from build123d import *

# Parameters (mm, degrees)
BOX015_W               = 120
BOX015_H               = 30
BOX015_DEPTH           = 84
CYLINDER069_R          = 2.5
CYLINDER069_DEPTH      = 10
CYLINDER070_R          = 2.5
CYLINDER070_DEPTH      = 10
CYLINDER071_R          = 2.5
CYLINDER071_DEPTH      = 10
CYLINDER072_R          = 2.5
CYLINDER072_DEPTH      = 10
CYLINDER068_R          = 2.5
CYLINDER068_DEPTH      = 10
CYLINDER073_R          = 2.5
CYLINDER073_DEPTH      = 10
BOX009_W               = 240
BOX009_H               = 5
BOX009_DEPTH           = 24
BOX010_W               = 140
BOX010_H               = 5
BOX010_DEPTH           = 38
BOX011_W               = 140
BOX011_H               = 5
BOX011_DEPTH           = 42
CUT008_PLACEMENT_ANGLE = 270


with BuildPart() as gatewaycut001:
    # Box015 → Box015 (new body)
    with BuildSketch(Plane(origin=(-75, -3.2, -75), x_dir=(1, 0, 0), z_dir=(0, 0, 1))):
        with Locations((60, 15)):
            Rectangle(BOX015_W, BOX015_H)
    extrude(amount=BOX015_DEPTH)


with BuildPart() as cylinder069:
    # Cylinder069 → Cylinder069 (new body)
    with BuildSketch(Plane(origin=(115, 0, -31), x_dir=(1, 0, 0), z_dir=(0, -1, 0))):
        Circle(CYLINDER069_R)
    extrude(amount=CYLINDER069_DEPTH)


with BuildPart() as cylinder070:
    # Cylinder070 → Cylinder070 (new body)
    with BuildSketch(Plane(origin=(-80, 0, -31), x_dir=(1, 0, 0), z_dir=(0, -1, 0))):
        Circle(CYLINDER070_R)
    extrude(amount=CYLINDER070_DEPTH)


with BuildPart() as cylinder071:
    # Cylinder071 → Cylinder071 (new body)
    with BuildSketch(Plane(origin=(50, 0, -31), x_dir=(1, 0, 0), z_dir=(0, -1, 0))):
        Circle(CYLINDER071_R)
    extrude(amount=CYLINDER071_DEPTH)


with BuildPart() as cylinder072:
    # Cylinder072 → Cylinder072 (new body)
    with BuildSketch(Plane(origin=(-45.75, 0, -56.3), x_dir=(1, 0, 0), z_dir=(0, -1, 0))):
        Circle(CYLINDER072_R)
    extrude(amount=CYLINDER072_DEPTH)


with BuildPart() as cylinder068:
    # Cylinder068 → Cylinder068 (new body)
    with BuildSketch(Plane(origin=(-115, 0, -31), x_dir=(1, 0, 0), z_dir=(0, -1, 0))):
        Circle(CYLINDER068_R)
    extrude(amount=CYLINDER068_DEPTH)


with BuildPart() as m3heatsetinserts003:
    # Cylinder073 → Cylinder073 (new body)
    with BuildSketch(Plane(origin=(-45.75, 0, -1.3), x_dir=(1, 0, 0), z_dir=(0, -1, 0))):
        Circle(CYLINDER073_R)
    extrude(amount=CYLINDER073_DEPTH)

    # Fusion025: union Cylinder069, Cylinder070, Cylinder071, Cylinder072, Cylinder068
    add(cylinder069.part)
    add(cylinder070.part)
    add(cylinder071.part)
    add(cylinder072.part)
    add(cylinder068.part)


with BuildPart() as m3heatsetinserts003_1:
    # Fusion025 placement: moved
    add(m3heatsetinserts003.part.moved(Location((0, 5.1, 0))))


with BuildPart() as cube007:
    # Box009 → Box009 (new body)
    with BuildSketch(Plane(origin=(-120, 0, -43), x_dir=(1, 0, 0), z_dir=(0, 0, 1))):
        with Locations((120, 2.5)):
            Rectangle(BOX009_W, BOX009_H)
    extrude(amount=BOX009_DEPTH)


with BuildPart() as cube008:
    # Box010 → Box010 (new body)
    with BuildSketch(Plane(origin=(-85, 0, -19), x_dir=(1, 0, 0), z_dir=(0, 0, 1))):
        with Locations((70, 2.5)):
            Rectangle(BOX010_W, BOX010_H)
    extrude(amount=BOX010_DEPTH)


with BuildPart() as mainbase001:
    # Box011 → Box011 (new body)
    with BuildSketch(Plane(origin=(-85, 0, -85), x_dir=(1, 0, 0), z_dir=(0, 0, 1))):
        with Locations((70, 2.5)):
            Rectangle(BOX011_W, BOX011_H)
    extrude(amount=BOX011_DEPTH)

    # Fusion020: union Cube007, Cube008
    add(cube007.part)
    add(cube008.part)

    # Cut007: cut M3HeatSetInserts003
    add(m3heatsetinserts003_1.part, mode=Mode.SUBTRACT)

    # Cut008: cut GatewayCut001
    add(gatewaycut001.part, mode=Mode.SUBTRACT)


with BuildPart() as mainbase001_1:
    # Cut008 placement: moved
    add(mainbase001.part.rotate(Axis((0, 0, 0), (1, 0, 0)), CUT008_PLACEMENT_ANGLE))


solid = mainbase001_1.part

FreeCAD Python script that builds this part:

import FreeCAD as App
import Part
import Sketcher
Q = App.Units.Quantity


def add_polygon(sketch, points):
    """Adds a closed chain of lines whose ends are joined by coincident constraints."""
    first, n = sketch.GeometryCount, len(points)
    for a, b in zip(points, points[1:] + points[:1]):
        sketch.addGeometry(Part.LineSegment(App.Vector(*a, 0), App.Vector(*b, 0)), False)
    for i in range(n):
        sketch.addConstraint(Sketcher.Constraint("Coincident", first + i, 2, first + (i + 1) % n, 1))

doc = App.newDocument("Part")
body = doc.addObject("PartDesign::Body", "Body")

sketch1 = body.newObject("Sketcher::SketchObject", "Sketch")
sketch1.AttachmentSupport = (doc.getObject("XY_Plane"), [""])
sketch1.MapMode = "FlatFace"
sketch1.AttachmentOffset = App.Placement(App.Vector(0, 0, -75), App.Rotation())
add_polygon(sketch1, [(-75, 26.8), (-75, -3.2), (45, -3.2), (45, 26.8)])
sketch1.addConstraint(Sketcher.Constraint("Vertical", 0))
sketch1.addConstraint(Sketcher.Constraint("Horizontal", 1))
sketch1.addConstraint(Sketcher.Constraint("Vertical", 2))
sketch1.addConstraint(Sketcher.Constraint("Horizontal", 3))
sketch1.addConstraint(Sketcher.Constraint("DistanceX", 1, 1, 1, 2, Q("120 mm")))
sketch1.addConstraint(Sketcher.Constraint("DistanceY", 0, 2, 0, 1, Q("30 mm")))
sketch1.addConstraint(Sketcher.Constraint("DistanceX", 0, 2, -1, 1, Q("75 mm")))
sketch1.addConstraint(Sketcher.Constraint("DistanceY", 0, 2, -1, 1, Q("3.2 mm")))
pad1 = body.newObject("PartDesign::Pad", "Pad")
pad1.Profile = sketch1
pad1.Length = 84
body2 = doc.addObject("PartDesign::Body", "Body001")

sketch2 = body2.newObject("Sketcher::SketchObject", "Sketch001")
sketch2.AttachmentSupport = (doc.getObject("XZ_Plane001"), [""])
sketch2.MapMode = "FlatFace"
sketch2.addGeometry(Part.Circle(App.Vector(115, -31, 0), App.Vector(0, 0, 1), 2.5), False)
sketch2.addConstraint(Sketcher.Constraint("Diameter", 0, Q("5 mm")))
sketch2.addConstraint(Sketcher.Constraint("DistanceX", -1, 1, 0, 3, Q("115 mm")))
sketch2.addConstraint(Sketcher.Constraint("DistanceY", 0, 3, -1, 1, Q("31 mm")))
pad2 = body2.newObject("PartDesign::Pad", "Pad001")
pad2.Profile = sketch2
pad2.Length = 10
body3 = doc.addObject("PartDesign::Body", "Body002")

sketch3 = body3.newObject("Sketcher::SketchObject", "Sketch002")
sketch3.AttachmentSupport = (doc.getObject("XZ_Plane002"), [""])
sketch3.MapMode = "FlatFace"
sketch3.addGeometry(Part.Circle(App.Vector(-80, -31, 0), App.Vector(0, 0, 1), 2.5), False)
sketch3.addConstraint(Sketcher.Constraint("Diameter", 0, Q("5 mm")))
sketch3.addConstraint(Sketcher.Constraint("DistanceX", 0, 3, -1, 1, Q("80 mm")))
sketch3.addConstraint(Sketcher.Constraint("DistanceY", 0, 3, -1, 1, Q("31 mm")))
pad3 = body3.newObject("PartDesign::Pad", "Pad002")
pad3.Profile = sketch3
pad3.Length = 10
body4 = doc.addObject("PartDesign::Body", "Body003")

sketch4 = body4.newObject("Sketcher::SketchObject", "Sketch003")
sketch4.AttachmentSupport = (doc.getObject("XZ_Plane003"), [""])
sketch4.MapMode = "FlatFace"
sketch4.addGeometry(Part.Circle(App.Vector(50, -31, 0), App.Vector(0, 0, 1), 2.5), False)
sketch4.addConstraint(Sketcher.Constraint("Diameter", 0, Q("5 mm")))
sketch4.addConstraint(Sketcher.Constraint("DistanceX", -1, 1, 0, 3, Q("50 mm")))
sketch4.addConstraint(Sketcher.Constraint("DistanceY", 0, 3, -1, 1, Q("31 mm")))
pad4 = body4.newObject("PartDesign::Pad", "Pad003")
pad4.Profile = sketch4
pad4.Length = 10
body5 = doc.addObject("PartDesign::Body", "Body004")

sketch5 = body5.newObject("Sketcher::SketchObject", "Sketch004")
sketch5.AttachmentSupport = (doc.getObject("XZ_Plane004"), [""])
sketch5.MapMode = "FlatFace"
sketch5.addGeometry(Part.Circle(App.Vector(-45.75, -56.3, 0), App.Vector(0, 0, 1), 2.5), False)
sketch5.addConstraint(Sketcher.Constraint("Diameter", 0, Q("5 mm")))
sketch5.addConstraint(Sketcher.Constraint("DistanceY", 0, 3, -1, 1, Q("56.3 mm")))
sketch5.addConstraint(Sketcher.Constraint("DistanceX", 0, 3, -1, 1, Q("45.75 mm")))
pad5 = body5.newObject("PartDesign::Pad", "Pad004")
pad5.Profile = sketch5
pad5.Length = 10
body6 = doc.addObject("PartDesign::Body", "Body005")

sketch6 = body6.newObject("Sketcher::SketchObject", "Sketch005")
sketch6.AttachmentSupport = (doc.getObject("XZ_Plane005"), [""])
sketch6.MapMode = "FlatFace"
sketch6.addGeometry(Part.Circle(App.Vector(-115, -31, 0), App.Vector(0, 0, 1), 2.5), False)
sketch6.addConstraint(Sketcher.Constraint("Diameter", 0, Q("5 mm")))
sketch6.addConstraint(Sketcher.Constraint("DistanceX", 0, 3, -1, 1, Q("115 mm")))
sketch6.addConstraint(Sketcher.Constraint("DistanceY", 0, 3, -1, 1, Q("31 mm")))
pad6 = body6.newObject("PartDesign::Pad", "Pad005")
pad6.Profile = sketch6
pad6.Length = 10
body7 = doc.addObject("PartDesign::Body", "Body006")
body7.AllowCompound = True

sketch7 = body7.newObject("Sketcher::SketchObject", "Sketch006")
sketch7.AttachmentSupport = (doc.getObject("XZ_Plane006"), [""])
sketch7.MapMode = "FlatFace"
sketch7.addGeometry(Part.Circle(App.Vector(-45.75, -1.3, 0), App.Vector(0, 0, 1), 2.5), False)
sketch7.addConstraint(Sketcher.Constraint("Diameter", 0, Q("5 mm")))
sketch7.addConstraint(Sketcher.Constraint("DistanceY", 0, 3, -1, 1, Q("1.3 mm")))
sketch7.addConstraint(Sketcher.Constraint("DistanceX", 0, 3, -1, 1, Q("45.75 mm")))
pad7 = body7.newObject("PartDesign::Pad", "Pad006")
pad7.Profile = sketch7
pad7.Length = 10
doc.recompute()

boolean = body7.newObject("PartDesign::Boolean", "Boolean")
boolean.Type = "Fuse"
boolean.addObjects([body2])
doc.recompute()

boolean2 = body7.newObject("PartDesign::Boolean", "Boolean001")
boolean2.Type = "Fuse"
boolean2.addObjects([body3])
doc.recompute()

boolean3 = body7.newObject("PartDesign::Boolean", "Boolean002")
boolean3.Type = "Fuse"
boolean3.addObjects([body4])
doc.recompute()

boolean4 = body7.newObject("PartDesign::Boolean", "Boolean003")
boolean4.Type = "Fuse"
boolean4.addObjects([body5])
doc.recompute()

boolean5 = body7.newObject("PartDesign::Boolean", "Boolean004")
boolean5.Type = "Fuse"
boolean5.addObjects([body6])
body8 = doc.addObject("PartDesign::Body", "Body007")
body8.AllowCompound = True
doc.recompute()

body7.Placement = App.Placement(App.Vector(0, 5.1, 0), App.Rotation(App.Vector(0, 0, 1), 0))
boolean6 = body8.newObject("PartDesign::Boolean", "Boolean005")
boolean6.Type = "Fuse"
boolean6.addObjects([body7])
body9 = doc.addObject("PartDesign::Body", "Body008")

sketch8 = body9.newObject("Sketcher::SketchObject", "Sketch007")
sketch8.AttachmentSupport = (doc.getObject("XY_Plane008"), [""])
sketch8.MapMode = "FlatFace"
sketch8.AttachmentOffset = App.Placement(App.Vector(0, 0, -43), App.Rotation())
add_polygon(sketch8, [(-120, 5), (-120, 0), (120, 0), (120, 5)])
sketch8.addConstraint(Sketcher.Constraint("Vertical", 0))
sketch8.addConstraint(Sketcher.Constraint("Horizontal", 1))
sketch8.addConstraint(Sketcher.Constraint("Vertical", 2))
sketch8.addConstraint(Sketcher.Constraint("Horizontal", 3))
sketch8.addConstraint(Sketcher.Constraint("Symmetric", 0, 2, 1, 2, -1, 1))
sketch8.addConstraint(Sketcher.Constraint("DistanceX", 1, 1, 1, 2, Q("240 mm")))
sketch8.addConstraint(Sketcher.Constraint("DistanceY", 0, 2, 0, 1, Q("5 mm")))
pad8 = body9.newObject("PartDesign::Pad", "Pad007")
pad8.Profile = sketch8
pad8.Length = 24
body10 = doc.addObject("PartDesign::Body", "Body009")

sketch9 = body10.newObject("Sketcher::SketchObject", "Sketch008")
sketch9.AttachmentSupport = (doc.getObject("XY_Plane009"), [""])
sketch9.MapMode = "FlatFace"
sketch9.AttachmentOffset = App.Placement(App.Vector(0, 0, -19), App.Rotation())
add_polygon(sketch9, [(-85, 5), (-85, 0), (55, 0), (55, 5)])
sketch9.addConstraint(Sketcher.Constraint("Vertical", 0))
sketch9.addConstraint(Sketcher.Constraint("Horizontal", 1))
sketch9.addConstraint(Sketcher.Constraint("Vertical", 2))
sketch9.addConstraint(Sketcher.Constraint("Horizontal", 3))
sketch9.addConstraint(Sketcher.Constraint("PointOnObject", 0, 2, -1))
sketch9.addConstraint(Sketcher.Constraint("DistanceX", 1, 1, 1, 2, Q("140 mm")))
sketch9.addConstraint(Sketcher.Constraint("DistanceY", 0, 2, 0, 1, Q("5 mm")))
sketch9.addConstraint(Sketcher.Constraint("DistanceX", 0, 2, -1, 1, Q("85 mm")))
pad9 = body10.newObject("PartDesign::Pad", "Pad008")
pad9.Profile = sketch9
pad9.Length = 38
body11 = doc.addObject("PartDesign::Body", "Body010")

sketch10 = body11.newObject("Sketcher::SketchObject", "Sketch009")
sketch10.AttachmentSupport = (doc.getObject("XY_Plane010"), [""])
sketch10.MapMode = "FlatFace"
sketch10.AttachmentOffset = App.Placement(App.Vector(0, 0, -85), App.Rotation())
add_polygon(sketch10, [(-85, 5), (-85, 0), (55, 0), (55, 5)])
sketch10.addConstraint(Sketcher.Constraint("Vertical", 0))
sketch10.addConstraint(Sketcher.Constraint("Horizontal", 1))
sketch10.addConstraint(Sketcher.Constraint("Vertical", 2))
sketch10.addConstraint(Sketcher.Constraint("Horizontal", 3))
sketch10.addConstraint(Sketcher.Constraint("PointOnObject", 0, 2, -1))
sketch10.addConstraint(Sketcher.Constraint("DistanceX", 1, 1, 1, 2, Q("140 mm")))
sketch10.addConstraint(Sketcher.Constraint("DistanceY", 0, 2, 0, 1, Q("5 mm")))
sketch10.addConstraint(Sketcher.Constraint("DistanceX", 0, 2, -1, 1, Q("85 mm")))
pad10 = body11.newObject("PartDesign::Pad", "Pad009")
pad10.Profile = sketch10
pad10.Length = 42
doc.recompute()

boolean7 = body11.newObject("PartDesign::Boolean", "Boolean006")
boolean7.Type = "Fuse"
boolean7.addObjects([body9])
doc.recompute()

boolean8 = body11.newObject("PartDesign::Boolean", "Boolean007")
boolean8.Type = "Fuse"
boolean8.addObjects([body10])
doc.recompute()

boolean9 = body11.newObject("PartDesign::Boolean", "Boolean008")
boolean9.Type = "Cut"
boolean9.addObjects([body8])
doc.recompute()

boolean10 = body11.newObject("PartDesign::Boolean", "Boolean009")
boolean10.Type = "Cut"
boolean10.addObjects([body])
body12 = doc.addObject("PartDesign::Body", "Body011")
doc.recompute()

body11.Placement = App.Placement(App.Vector(0, 0, 0), App.Rotation(App.Vector(1, 0, 0), 270))
boolean11 = body12.newObject("PartDesign::Boolean", "Boolean010")
boolean11.Type = "Fuse"
boolean11.addObjects([body11])

doc.recompute()
